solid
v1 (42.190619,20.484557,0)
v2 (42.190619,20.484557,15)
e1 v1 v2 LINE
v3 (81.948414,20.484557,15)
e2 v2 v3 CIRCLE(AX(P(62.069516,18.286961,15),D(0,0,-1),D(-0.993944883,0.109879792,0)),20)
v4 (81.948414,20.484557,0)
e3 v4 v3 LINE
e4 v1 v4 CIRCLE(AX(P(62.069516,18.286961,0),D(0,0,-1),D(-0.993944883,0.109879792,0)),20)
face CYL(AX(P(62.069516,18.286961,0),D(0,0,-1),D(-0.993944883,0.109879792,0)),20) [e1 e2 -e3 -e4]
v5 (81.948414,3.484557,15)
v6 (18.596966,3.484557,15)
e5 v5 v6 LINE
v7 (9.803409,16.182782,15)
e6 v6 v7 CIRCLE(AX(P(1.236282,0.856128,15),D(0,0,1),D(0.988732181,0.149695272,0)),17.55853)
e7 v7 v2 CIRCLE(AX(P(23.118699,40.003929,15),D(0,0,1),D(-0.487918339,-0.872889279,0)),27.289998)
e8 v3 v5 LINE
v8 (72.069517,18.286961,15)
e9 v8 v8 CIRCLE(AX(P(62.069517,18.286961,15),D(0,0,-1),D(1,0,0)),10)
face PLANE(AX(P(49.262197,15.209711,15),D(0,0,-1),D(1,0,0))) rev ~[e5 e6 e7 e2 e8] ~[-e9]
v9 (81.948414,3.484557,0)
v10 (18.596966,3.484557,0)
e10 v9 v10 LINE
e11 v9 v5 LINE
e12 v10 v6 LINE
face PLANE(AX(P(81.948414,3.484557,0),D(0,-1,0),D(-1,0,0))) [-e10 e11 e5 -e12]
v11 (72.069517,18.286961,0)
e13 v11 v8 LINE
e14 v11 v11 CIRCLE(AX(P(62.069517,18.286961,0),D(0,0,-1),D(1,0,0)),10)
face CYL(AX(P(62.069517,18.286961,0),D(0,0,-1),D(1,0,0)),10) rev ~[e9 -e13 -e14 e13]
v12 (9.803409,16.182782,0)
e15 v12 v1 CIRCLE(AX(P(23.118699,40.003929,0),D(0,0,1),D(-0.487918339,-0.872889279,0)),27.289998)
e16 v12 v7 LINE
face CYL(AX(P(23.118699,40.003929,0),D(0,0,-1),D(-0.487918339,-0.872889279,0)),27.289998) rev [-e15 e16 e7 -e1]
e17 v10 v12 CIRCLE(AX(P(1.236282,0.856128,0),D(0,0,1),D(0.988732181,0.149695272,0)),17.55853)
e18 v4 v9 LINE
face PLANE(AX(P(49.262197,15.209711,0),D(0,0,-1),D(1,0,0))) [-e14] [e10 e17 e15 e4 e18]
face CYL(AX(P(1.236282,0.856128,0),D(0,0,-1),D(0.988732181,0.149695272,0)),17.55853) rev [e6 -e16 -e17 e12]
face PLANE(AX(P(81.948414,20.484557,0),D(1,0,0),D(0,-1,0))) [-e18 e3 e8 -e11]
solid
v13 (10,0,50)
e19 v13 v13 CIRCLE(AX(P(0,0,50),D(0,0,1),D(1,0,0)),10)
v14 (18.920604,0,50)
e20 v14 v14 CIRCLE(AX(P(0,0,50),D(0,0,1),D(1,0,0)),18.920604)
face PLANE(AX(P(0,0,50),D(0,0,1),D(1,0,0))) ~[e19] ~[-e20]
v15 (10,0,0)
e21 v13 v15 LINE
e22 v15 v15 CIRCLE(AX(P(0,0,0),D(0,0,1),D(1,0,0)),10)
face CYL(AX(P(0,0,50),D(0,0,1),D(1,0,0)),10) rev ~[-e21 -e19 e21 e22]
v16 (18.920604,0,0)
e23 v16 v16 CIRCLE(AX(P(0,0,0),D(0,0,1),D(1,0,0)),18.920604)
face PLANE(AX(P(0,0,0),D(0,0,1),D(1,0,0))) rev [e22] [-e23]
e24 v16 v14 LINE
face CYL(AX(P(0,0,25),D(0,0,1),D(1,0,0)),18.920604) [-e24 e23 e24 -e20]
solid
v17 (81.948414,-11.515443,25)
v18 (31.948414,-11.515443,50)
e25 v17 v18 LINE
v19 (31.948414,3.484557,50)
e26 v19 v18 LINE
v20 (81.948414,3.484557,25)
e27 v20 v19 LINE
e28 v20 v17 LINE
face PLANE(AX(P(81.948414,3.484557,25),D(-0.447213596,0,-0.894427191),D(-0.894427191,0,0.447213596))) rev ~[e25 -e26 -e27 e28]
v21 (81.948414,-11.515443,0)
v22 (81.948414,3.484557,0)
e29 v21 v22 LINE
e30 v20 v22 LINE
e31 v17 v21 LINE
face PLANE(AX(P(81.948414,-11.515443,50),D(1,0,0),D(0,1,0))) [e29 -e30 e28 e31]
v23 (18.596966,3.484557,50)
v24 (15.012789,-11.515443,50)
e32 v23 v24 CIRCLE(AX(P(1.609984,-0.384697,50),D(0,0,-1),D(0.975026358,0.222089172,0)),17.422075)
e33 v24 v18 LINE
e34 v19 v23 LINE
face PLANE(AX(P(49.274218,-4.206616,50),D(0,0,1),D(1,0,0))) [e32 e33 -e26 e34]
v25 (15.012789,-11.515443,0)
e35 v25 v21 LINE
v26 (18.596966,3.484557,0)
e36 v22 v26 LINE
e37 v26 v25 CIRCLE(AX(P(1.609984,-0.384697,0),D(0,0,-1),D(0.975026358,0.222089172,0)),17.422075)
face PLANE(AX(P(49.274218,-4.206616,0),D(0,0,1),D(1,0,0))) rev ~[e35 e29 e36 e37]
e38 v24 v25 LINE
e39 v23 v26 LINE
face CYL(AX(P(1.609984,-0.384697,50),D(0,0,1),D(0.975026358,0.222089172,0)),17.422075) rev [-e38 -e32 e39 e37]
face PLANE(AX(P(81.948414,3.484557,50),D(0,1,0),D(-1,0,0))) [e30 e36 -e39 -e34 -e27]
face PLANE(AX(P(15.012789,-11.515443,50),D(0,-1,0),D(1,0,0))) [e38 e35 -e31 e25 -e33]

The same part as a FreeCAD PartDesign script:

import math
import FreeCAD as App
import Part
import Sketcher

V = App.Vector


def add_polygon(sketch, points):
    """Adds a closed chain of lines whose ends are joined by coincident constraints."""
    first, n = sketch.GeometryCount, len(points)
    for a, b in zip(points, points[1:] + points[:1]):
        sketch.addGeometry(Part.LineSegment(App.Vector(*a, 0), App.Vector(*b, 0)), False)
    for i in range(n):
        sketch.addConstraint(Sketcher.Constraint("Coincident", first + i, 2, first + (i + 1) % n, 1))

doc = App.newDocument("Part")
body = doc.addObject("PartDesign::Body", "Body")

sketch1 = body.newObject("Sketcher::SketchObject", "Sketch")
sketch1.AttachmentSupport = (doc.getObject("XZ_Plane"), [""])
sketch1.MapMode = "FlatFace"
add_polygon(sketch1, [(0, 50), (0, 0), (19, 0), (19, 50)])
sketch1.addConstraint([
    Sketcher.Constraint("Vertical", 0),
    Sketcher.Constraint("Horizontal", 1),
    Sketcher.Constraint("Vertical", 2),
    Sketcher.Constraint("Horizontal", 3),
    Sketcher.Constraint("Coincident", 0, 2, -1, 1),
    Sketcher.Constraint("DistanceY", 0, 2, 0, 1, 50.0),
    Sketcher.Constraint("DistanceX", 1, 1, 1, 2, 18.920604),
])
revolution = body.newObject("PartDesign::Revolution", "Revolution")
revolution.Profile = sketch1
revolution.ReferenceAxis = (sketch1, ["V_Axis"])
revolution.Angle = 360

sketch2 = body.newObject("Sketcher::SketchObject", "Sketch001")
sketch2.AttachmentSupport = (doc.getObject("XY_Plane"), [""])
sketch2.MapMode = "FlatFace"
sketch2.AttachmentOffset = App.Placement(V(0, 0, 50), App.Rotation())
sketch2.addGeometry(Part.Circle(V(0, 0, 0), V(0, 0, 1), 10), False)
sketch2.addConstraint([
    Sketcher.Constraint("Coincident", 0, 3, -1, 1),
    Sketcher.Constraint("Diameter", 0, 20.0),
])
pocket1 = body.newObject("PartDesign::Pocket", "Pocket")
pocket1.Profile = sketch2
pocket1.Length = 50
body2 = doc.addObject("PartDesign::Body", "Body001")

sketch3 = body2.newObject("Sketcher::SketchObject", "Sketch002")
sketch3.AttachmentSupport = (doc.getObject("XY_Plane001"), [""])
sketch3.MapMode = "FlatFace"
sketch3.AttachmentOffset = App.Placement(V(0, 0, 50), App.Rotation())
sketch3.addGeometry([
    Part.LineSegment(V(82, 3, 0), V(19, 3, 0)),
    Part.ArcOfCircle(Part.Circle(V(2, 0, 0), V(0, 0, 1), 17), math.radians(-40), math.radians(13)),
    Part.LineSegment(V(15, -12, 0), V(82, -12, 0)),
    Part.LineSegment(V(82, -12, 0), V(82, 3, 0)),
], False)
sketch3.addConstraint([
    Sketcher.Constraint("Coincident", 0, 2, 1, 2),
    Sketcher.Constraint("Coincident", 1, 1, 2, 1),
    Sketcher.Constraint("Coincident", 2, 2, 3, 1),
    Sketcher.Constraint("Coincident", 3, 2, 0, 1),
    Sketcher.Constraint("Horizontal", 0),
    Sketcher.Constraint("Horizontal", 2),
    Sketcher.Constraint("Vertical", 3),
    Sketcher.Constraint("DistanceY", 3, 1, 3, 2, 15.0),
    Sketcher.Constraint("Radius", 1, 17.422075),
    Sketcher.Constraint("DistanceX", 0, 2, 0, 1, 63.351448),
    Sketcher.Constraint("DistanceX", 2, 1, 2, 2, 66.935625),
    Sketcher.Constraint("DistanceX", -1, 1, 1, 1, 15.012789),
    Sketcher.Constraint("DistanceY", 1, 3, -1, 1, 0.384697),
])
pad1 = body2.newObject("PartDesign::Pad", "Pad")
pad1.Profile = sketch3
pad1.Length = 50
pad1.Reversed = True

sketch4 = body2.newObject("Sketcher::SketchObject", "Sketch003")
sketch4.AttachmentSupport = (doc.getObject("XZ_Plane001"), [""])
sketch4.MapMode = "FlatFace"
sketch4.AttachmentOffset = App.Placement(V(0, 0, -3.484557), App.Rotation())
add_polygon(sketch4, [(82, 25), (32, 50), (82, 50)])
sketch4.addConstraint([
    Sketcher.Constraint("Horizontal", 1),
    Sketcher.Constraint("Vertical", 2),
    Sketcher.Constraint("DistanceX", 1, 1, 1, 2, 50.0),
    Sketcher.Constraint("DistanceY", 2, 2, 2, 1, 25.0),
    Sketcher.Constraint("DistanceY", -1, 1, 0, 2, 50.0),
    Sketcher.Constraint("DistanceX", -1, 1, 0, 2, 31.948414),
])
pocket2 = body2.newObject("PartDesign::Pocket", "Pocket001")
pocket2.Profile = sketch4
pocket2.Length = 15
pocket2.Reversed = True
body3 = doc.addObject("PartDesign::Body", "Body002")

sketch5 = body3.newObject("Sketcher::SketchObject", "Sketch004")
sketch5.AttachmentSupport = (doc.getObject("XY_Plane002"), [""])
sketch5.MapMode = "FlatFace"
sketch5.addGeometry([
    Part.ArcOfCircle(Part.Circle(V(1, 1, 0), V(0, 0, 1), 18), math.radians(9), math.radians(61)),
    Part.ArcOfCircle(Part.Circle(V(23, 40, 0), V(0, 0, 1), 27), math.radians(-119), math.radians(-46)),
    Part.ArcOfCircle(Part.Circle(V(62, 18, 0), V(0, 0, 1), 20), math.radians(6), math.radians(174)),
    Part.LineSegment(V(82, 20, 0), V(82, 3, 0)),
    Part.LineSegment(V(82, 3, 0), V(19, 3, 0)),
], False)
sketch5.addConstraint([
    Sketcher.Constraint("Tangent", 0, 2, 1, 1),
    Sketcher.Constraint("Coincident", 1, 2, 2, 2),
    Sketcher.Constraint("Coincident", 2, 1, 3, 1),
    Sketcher.Constraint("Coincident", 3, 2, 4, 1),
    Sketcher.Constraint("Coincident", 4, 2, 0, 1),
    Sketcher.Constraint("Vertical", 3),
    Sketcher.Constraint("Horizontal", 4),
    Sketcher.Constraint("Horizontal", 1, 2, 2, 1),
    Sketcher.Constraint("Radius", 2, 20.0),
    Sketcher.Constraint("DistanceY", 3, 2, 3, 1, 17.0),
    Sketcher.Constraint("Radius", 0, 17.55853),
    Sketcher.Constraint("Radius", 1, 27.289998),
    Sketcher.Constraint("DistanceX", 4, 2, 4, 1, 63.351448),
    Sketcher.Constraint("DistanceX", -1, 1, 1, 3, 23.118699),
    Sketcher.Constraint("DistanceY", 0, 3, 1, 3, 39.147801),
    Sketcher.Constraint("DistanceY", -1, 1, 0, 3, 0.856128),
    Sketcher.Constraint("DistanceY", -1, 1, 2, 3, 18.286961),
])
pad2 = body3.newObject("PartDesign::Pad", "Pad001")
pad2.Profile = sketch5
pad2.Length = 15

sketch6 = body3.newObject("Sketcher::SketchObject", "Sketch005")
sketch6.AttachmentSupport = (doc.getObject("XY_Plane002"), [""])
sketch6.MapMode = "FlatFace"
sketch6.addGeometry(Part.Circle(V(62, 18, 0), V(0, 0, 1), 10), False)
sketch6.addConstraint([
    Sketcher.Constraint("Diameter", 0, 20.0),
    Sketcher.Constraint("DistanceY", -1, 1, 0, 3, 18.286961),
    Sketcher.Constraint("DistanceX", -1, 1, 0, 3, 62.069517),
])
pocket3 = body3.newObject("PartDesign::Pocket", "Pocket002")
pocket3.Profile = sketch6
pocket3.Length = 15
pocket3.Reversed = True

doc.recompute()
